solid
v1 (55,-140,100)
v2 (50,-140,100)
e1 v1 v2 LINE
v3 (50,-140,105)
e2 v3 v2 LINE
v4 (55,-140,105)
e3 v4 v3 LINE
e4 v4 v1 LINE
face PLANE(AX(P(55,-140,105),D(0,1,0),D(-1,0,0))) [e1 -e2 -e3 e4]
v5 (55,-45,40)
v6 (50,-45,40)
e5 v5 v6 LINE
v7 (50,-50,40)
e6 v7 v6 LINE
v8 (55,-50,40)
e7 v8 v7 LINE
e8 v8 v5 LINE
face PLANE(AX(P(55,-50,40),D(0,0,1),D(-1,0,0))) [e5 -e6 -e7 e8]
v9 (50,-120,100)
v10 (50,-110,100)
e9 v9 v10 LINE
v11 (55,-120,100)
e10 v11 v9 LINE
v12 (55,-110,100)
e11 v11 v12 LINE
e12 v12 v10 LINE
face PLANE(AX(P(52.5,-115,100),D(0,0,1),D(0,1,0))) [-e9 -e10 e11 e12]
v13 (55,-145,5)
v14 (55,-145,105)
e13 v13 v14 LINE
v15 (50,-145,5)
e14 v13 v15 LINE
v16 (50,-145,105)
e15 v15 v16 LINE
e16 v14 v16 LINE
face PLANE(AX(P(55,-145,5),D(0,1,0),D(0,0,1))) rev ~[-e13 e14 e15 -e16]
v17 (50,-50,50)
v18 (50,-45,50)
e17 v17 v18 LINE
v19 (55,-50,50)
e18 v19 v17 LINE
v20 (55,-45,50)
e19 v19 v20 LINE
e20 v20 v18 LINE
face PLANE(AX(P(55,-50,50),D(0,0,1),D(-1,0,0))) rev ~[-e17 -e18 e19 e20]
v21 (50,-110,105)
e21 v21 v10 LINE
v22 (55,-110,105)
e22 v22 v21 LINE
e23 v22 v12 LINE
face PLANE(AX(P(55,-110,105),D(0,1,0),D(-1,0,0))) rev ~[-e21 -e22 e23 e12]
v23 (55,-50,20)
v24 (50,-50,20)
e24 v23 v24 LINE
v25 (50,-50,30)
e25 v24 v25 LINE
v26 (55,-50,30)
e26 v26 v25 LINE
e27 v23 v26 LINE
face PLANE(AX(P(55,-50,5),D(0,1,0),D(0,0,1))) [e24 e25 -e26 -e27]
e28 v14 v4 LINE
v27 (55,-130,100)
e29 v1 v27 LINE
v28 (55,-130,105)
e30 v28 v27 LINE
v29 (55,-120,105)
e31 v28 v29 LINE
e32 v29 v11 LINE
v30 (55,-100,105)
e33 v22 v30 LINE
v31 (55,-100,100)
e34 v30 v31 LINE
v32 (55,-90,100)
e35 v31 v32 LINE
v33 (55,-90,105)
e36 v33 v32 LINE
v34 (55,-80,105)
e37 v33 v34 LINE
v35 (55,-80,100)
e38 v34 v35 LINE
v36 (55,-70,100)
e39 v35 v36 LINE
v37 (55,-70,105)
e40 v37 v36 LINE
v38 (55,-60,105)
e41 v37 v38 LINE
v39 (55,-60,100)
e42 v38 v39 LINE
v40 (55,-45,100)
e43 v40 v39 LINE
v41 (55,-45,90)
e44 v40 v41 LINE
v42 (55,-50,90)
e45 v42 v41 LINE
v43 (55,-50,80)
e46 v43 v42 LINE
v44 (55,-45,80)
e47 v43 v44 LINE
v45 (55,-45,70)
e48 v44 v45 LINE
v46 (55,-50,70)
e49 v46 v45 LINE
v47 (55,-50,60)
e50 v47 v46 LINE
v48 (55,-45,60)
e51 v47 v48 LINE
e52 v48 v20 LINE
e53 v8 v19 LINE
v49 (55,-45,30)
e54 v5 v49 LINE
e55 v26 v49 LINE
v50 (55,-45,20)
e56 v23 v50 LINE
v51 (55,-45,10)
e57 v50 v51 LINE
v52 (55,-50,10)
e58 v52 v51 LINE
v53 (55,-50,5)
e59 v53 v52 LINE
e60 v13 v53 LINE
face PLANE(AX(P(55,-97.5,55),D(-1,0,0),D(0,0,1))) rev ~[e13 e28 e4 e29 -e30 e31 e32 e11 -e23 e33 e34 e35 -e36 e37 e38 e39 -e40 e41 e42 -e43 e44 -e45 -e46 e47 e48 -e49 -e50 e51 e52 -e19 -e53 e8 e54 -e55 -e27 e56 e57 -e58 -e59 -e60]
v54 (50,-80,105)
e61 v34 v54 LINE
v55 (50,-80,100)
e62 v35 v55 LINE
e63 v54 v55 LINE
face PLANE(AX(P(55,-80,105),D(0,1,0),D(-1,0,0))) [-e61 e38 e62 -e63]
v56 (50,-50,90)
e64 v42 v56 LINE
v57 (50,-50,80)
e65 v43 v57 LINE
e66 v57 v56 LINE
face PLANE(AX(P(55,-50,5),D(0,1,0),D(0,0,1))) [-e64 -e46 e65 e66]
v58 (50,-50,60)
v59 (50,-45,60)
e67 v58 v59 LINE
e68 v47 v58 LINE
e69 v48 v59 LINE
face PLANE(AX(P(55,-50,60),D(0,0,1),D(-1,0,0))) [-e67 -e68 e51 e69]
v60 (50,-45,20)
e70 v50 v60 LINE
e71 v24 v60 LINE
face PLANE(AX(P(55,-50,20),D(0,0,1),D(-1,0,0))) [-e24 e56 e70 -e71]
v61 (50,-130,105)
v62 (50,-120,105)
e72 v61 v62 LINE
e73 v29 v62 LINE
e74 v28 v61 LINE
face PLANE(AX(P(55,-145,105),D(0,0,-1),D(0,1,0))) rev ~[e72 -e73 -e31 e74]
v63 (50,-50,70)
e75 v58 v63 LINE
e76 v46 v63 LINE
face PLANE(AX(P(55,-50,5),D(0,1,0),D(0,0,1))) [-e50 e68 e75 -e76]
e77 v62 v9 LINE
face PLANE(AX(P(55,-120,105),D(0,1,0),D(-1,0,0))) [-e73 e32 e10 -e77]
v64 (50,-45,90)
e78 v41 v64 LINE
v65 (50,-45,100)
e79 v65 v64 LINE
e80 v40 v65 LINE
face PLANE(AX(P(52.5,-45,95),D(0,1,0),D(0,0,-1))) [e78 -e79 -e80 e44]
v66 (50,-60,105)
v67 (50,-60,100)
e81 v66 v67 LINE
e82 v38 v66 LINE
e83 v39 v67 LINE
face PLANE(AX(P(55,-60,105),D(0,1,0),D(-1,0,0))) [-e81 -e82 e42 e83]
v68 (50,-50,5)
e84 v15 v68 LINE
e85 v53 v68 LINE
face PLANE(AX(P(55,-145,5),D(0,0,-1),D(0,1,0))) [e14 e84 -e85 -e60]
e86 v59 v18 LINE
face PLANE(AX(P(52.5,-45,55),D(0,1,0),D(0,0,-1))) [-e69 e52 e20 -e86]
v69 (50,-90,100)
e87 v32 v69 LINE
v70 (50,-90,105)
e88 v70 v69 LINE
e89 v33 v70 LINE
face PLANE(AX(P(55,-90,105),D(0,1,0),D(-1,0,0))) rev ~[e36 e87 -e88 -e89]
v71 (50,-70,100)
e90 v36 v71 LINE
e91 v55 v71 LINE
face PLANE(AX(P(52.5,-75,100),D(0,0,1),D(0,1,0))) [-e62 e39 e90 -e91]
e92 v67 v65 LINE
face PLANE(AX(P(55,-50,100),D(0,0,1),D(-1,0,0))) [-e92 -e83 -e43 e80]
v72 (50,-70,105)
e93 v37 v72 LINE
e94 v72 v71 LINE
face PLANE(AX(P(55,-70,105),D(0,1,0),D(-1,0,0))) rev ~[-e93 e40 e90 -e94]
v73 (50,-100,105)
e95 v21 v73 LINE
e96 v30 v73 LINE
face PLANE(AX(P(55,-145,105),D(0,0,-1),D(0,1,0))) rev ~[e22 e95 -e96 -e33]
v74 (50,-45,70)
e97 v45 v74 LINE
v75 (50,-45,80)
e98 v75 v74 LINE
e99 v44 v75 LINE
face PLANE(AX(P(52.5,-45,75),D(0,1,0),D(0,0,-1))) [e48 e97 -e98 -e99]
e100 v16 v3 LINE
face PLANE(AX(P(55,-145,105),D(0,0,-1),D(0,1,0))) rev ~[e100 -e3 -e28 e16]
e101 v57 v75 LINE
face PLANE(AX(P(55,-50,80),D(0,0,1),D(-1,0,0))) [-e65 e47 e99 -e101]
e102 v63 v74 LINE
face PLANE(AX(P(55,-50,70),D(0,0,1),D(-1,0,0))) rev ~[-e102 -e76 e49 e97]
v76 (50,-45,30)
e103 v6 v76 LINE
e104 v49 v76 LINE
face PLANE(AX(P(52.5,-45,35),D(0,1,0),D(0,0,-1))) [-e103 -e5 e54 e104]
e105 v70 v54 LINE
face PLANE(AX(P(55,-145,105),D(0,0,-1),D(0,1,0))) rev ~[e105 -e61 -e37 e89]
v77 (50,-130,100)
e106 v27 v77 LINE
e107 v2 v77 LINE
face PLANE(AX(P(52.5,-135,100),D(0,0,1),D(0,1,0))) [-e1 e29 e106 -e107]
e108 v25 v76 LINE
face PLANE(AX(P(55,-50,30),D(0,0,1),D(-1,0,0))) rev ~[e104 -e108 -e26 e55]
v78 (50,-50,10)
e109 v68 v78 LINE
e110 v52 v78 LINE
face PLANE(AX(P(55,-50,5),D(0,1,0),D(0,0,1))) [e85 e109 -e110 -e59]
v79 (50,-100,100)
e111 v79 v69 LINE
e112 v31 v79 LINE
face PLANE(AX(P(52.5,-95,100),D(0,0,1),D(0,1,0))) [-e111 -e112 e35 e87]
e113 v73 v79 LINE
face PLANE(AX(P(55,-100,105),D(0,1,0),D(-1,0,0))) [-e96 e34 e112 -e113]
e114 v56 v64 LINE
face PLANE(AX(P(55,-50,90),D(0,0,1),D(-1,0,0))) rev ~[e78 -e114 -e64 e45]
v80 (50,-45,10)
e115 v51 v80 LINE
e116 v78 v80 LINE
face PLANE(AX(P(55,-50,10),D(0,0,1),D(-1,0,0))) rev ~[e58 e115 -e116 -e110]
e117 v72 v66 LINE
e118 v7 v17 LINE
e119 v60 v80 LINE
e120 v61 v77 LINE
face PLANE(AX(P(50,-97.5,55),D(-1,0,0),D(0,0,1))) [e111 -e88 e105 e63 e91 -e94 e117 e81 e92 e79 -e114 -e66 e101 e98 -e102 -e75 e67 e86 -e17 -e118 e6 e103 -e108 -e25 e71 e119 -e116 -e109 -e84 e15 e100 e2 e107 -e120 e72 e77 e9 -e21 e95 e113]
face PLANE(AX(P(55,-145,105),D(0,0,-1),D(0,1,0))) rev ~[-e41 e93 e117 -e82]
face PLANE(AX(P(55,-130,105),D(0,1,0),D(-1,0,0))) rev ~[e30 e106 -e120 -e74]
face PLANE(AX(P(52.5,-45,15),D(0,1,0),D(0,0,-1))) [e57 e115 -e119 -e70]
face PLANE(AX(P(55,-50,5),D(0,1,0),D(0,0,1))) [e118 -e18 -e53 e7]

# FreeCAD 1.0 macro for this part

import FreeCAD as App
import Part
import Sketcher
from FreeCAD import Vector
Q = App.Units.Quantity


def add_polygon(sketch, points):
    """Adds a closed chain of lines whose ends are joined by coincident constraints."""
    first, n = sketch.GeometryCount, len(points)
    for a, b in zip(points, points[1:] + points[:1]):
        sketch.addGeometry(Part.LineSegment(App.Vector(*a, 0), App.Vector(*b, 0)), False)
    for i in range(n):
        sketch.addConstraint(Sketcher.Constraint("Coincident", first + i, 2, first + (i + 1) % n, 1))

doc = App.newDocument("Part")
body = doc.addObject("PartDesign::Body", "Body")

sketch1 = doc.addObject("Sketcher::SketchObject", "Sketch")
body.addObject(sketch1)
sketch1.AttachmentSupport = (doc.XY_Plane, [""])
sketch1.MapMode = "FlatFace"
add_polygon(sketch1, [(-50, 48), (-50, -48), (50, -48), (50, 48)])
sketch1.addConstraint(Sketcher.Constraint("Vertical", 0))
sketch1.addConstraint(Sketcher.Constraint("Horizontal", 1))
sketch1.addConstraint(Sketcher.Constraint("Vertical", 2))
sketch1.addConstraint(Sketcher.Constraint("Horizontal", 3))
sketch1.addConstraint(Sketcher.Constraint("Symmetric", 0, 2, 2, 2, -1, 1))
sketch1.addConstraint(Sketcher.Constraint("DistanceX", 1, 1, 1, 2, Q("100 mm")))
sketch1.addConstraint(Sketcher.Constraint("DistanceY", 0, 2, 0, 1, Q("95 mm")))
pad1 = doc.addObject("PartDesign::Pad", "Pad")
body.addObject(pad1)
pad1.Profile = sketch1
pad1.Length = 5

sketch2 = doc.addObject("Sketcher::SketchObject", "Sketch001")
body.addObject(sketch2)
sketch2.AttachmentSupport = (doc.XZ_Plane, [""])
sketch2.MapMode = "FlatFace"
sketch2.AttachmentOffset = App.Placement(Vector(0, 0, -47.5), App.Rotation())
add_polygon(sketch2, [(45, 5), (45, 0), (35, 0), (35, 5)])
sketch2.addConstraint(Sketcher.Constraint("Vertical", 0))
sketch2.addConstraint(Sketcher.Constraint("Horizontal", 1))
sketch2.addConstraint(Sketcher.Constraint("Vertical", 2))
sketch2.addConstraint(Sketcher.Constraint("Horizontal", 3))
sketch2.addConstraint(Sketcher.Constraint("PointOnObject", 0, 2, -1))
sketch2.addConstraint(Sketcher.Constraint("DistanceX", 1, 2, 1, 1, Q("10 mm")))
sketch2.addConstraint(Sketcher.Constraint("DistanceY", 0, 2, 0, 1, Q("5 mm")))
sketch2.addConstraint(Sketcher.Constraint("DistanceX", -1, 1, 0, 2, Q("45 mm")))
pad2 = doc.addObject("PartDesign::Pad", "Pad001")
body.addObject(pad2)
pad2.Profile = sketch2
pad2.Length = 5
pad2.Reversed = True
doc.recompute()

linearpattern = doc.addObject("PartDesign::LinearPattern", "LinearPattern")
body.addObject(linearpattern)
linearpattern.Originals = [pad2]
linearpattern.Direction = (doc.X_Axis, [""])
linearpattern.Mode = "offset"
linearpattern.Offset = 20
linearpattern.Occurrences = 5
linearpattern.Reversed = True
body.Tip = linearpattern

sketch3 = doc.addObject("Sketcher::SketchObject", "Sketch002")
body.addObject(sketch3)
sketch3.AttachmentSupport = (doc.YZ_Plane, [""])
sketch3.MapMode = "FlatFace"
sketch3.AttachmentOffset = App.Placement(Vector(0, 0, 50), App.Rotation())
add_polygon(sketch3, [(-42, 5), (-42, 0), (-32, 0), (-32, 5)])
sketch3.addConstraint(Sketcher.Constraint("Vertical", 0))
sketch3.addConstraint(Sketcher.Constraint("Horizontal", 1))
sketch3.addConstraint(Sketcher.Constraint("Vertical", 2))
sketch3.addConstraint(Sketcher.Constraint("Horizontal", 3))
sketch3.addConstraint(Sketcher.Constraint("PointOnObject", 0, 2, -1))
sketch3.addConstraint(Sketcher.Constraint("DistanceX", 1, 1, 1, 2, Q("10 mm")))
sketch3.addConstraint(Sketcher.Constraint("DistanceY", 0, 2, 0, 1, Q("5 mm")))
sketch3.addConstraint(Sketcher.Constraint("DistanceX", 0, 2, -1, 1, Q("42.5 mm")))
pocket1 = doc.addObject("PartDesign::Pocket", "Pocket")
body.addObject(pocket1)
pocket1.Profile = sketch3
pocket1.Length = 5
doc.recompute()

linearpattern2 = doc.addObject("PartDesign::LinearPattern", "LinearPattern001")
body.addObject(linearpattern2)
linearpattern2.Originals = [pocket1]
linearpattern2.Direction = (doc.Y_Axis, [""])
linearpattern2.Mode = "offset"
linearpattern2.Offset = 20
linearpattern2.Occurrences = 5
body.Tip = linearpattern2
body2 = doc.addObject("PartDesign::Body", "Body001")
doc.recompute()

body.Placement = App.Placement(Vector(55, -97.5, 55), App.Rotation(Vector(0, -1, 0), 90))
boolean = doc.addObject("PartDesign::Boolean", "Boolean")
body2.addObject(boolean)
boolean.Type = "Fuse"
boolean.addObjects([body])

doc.recompute()
